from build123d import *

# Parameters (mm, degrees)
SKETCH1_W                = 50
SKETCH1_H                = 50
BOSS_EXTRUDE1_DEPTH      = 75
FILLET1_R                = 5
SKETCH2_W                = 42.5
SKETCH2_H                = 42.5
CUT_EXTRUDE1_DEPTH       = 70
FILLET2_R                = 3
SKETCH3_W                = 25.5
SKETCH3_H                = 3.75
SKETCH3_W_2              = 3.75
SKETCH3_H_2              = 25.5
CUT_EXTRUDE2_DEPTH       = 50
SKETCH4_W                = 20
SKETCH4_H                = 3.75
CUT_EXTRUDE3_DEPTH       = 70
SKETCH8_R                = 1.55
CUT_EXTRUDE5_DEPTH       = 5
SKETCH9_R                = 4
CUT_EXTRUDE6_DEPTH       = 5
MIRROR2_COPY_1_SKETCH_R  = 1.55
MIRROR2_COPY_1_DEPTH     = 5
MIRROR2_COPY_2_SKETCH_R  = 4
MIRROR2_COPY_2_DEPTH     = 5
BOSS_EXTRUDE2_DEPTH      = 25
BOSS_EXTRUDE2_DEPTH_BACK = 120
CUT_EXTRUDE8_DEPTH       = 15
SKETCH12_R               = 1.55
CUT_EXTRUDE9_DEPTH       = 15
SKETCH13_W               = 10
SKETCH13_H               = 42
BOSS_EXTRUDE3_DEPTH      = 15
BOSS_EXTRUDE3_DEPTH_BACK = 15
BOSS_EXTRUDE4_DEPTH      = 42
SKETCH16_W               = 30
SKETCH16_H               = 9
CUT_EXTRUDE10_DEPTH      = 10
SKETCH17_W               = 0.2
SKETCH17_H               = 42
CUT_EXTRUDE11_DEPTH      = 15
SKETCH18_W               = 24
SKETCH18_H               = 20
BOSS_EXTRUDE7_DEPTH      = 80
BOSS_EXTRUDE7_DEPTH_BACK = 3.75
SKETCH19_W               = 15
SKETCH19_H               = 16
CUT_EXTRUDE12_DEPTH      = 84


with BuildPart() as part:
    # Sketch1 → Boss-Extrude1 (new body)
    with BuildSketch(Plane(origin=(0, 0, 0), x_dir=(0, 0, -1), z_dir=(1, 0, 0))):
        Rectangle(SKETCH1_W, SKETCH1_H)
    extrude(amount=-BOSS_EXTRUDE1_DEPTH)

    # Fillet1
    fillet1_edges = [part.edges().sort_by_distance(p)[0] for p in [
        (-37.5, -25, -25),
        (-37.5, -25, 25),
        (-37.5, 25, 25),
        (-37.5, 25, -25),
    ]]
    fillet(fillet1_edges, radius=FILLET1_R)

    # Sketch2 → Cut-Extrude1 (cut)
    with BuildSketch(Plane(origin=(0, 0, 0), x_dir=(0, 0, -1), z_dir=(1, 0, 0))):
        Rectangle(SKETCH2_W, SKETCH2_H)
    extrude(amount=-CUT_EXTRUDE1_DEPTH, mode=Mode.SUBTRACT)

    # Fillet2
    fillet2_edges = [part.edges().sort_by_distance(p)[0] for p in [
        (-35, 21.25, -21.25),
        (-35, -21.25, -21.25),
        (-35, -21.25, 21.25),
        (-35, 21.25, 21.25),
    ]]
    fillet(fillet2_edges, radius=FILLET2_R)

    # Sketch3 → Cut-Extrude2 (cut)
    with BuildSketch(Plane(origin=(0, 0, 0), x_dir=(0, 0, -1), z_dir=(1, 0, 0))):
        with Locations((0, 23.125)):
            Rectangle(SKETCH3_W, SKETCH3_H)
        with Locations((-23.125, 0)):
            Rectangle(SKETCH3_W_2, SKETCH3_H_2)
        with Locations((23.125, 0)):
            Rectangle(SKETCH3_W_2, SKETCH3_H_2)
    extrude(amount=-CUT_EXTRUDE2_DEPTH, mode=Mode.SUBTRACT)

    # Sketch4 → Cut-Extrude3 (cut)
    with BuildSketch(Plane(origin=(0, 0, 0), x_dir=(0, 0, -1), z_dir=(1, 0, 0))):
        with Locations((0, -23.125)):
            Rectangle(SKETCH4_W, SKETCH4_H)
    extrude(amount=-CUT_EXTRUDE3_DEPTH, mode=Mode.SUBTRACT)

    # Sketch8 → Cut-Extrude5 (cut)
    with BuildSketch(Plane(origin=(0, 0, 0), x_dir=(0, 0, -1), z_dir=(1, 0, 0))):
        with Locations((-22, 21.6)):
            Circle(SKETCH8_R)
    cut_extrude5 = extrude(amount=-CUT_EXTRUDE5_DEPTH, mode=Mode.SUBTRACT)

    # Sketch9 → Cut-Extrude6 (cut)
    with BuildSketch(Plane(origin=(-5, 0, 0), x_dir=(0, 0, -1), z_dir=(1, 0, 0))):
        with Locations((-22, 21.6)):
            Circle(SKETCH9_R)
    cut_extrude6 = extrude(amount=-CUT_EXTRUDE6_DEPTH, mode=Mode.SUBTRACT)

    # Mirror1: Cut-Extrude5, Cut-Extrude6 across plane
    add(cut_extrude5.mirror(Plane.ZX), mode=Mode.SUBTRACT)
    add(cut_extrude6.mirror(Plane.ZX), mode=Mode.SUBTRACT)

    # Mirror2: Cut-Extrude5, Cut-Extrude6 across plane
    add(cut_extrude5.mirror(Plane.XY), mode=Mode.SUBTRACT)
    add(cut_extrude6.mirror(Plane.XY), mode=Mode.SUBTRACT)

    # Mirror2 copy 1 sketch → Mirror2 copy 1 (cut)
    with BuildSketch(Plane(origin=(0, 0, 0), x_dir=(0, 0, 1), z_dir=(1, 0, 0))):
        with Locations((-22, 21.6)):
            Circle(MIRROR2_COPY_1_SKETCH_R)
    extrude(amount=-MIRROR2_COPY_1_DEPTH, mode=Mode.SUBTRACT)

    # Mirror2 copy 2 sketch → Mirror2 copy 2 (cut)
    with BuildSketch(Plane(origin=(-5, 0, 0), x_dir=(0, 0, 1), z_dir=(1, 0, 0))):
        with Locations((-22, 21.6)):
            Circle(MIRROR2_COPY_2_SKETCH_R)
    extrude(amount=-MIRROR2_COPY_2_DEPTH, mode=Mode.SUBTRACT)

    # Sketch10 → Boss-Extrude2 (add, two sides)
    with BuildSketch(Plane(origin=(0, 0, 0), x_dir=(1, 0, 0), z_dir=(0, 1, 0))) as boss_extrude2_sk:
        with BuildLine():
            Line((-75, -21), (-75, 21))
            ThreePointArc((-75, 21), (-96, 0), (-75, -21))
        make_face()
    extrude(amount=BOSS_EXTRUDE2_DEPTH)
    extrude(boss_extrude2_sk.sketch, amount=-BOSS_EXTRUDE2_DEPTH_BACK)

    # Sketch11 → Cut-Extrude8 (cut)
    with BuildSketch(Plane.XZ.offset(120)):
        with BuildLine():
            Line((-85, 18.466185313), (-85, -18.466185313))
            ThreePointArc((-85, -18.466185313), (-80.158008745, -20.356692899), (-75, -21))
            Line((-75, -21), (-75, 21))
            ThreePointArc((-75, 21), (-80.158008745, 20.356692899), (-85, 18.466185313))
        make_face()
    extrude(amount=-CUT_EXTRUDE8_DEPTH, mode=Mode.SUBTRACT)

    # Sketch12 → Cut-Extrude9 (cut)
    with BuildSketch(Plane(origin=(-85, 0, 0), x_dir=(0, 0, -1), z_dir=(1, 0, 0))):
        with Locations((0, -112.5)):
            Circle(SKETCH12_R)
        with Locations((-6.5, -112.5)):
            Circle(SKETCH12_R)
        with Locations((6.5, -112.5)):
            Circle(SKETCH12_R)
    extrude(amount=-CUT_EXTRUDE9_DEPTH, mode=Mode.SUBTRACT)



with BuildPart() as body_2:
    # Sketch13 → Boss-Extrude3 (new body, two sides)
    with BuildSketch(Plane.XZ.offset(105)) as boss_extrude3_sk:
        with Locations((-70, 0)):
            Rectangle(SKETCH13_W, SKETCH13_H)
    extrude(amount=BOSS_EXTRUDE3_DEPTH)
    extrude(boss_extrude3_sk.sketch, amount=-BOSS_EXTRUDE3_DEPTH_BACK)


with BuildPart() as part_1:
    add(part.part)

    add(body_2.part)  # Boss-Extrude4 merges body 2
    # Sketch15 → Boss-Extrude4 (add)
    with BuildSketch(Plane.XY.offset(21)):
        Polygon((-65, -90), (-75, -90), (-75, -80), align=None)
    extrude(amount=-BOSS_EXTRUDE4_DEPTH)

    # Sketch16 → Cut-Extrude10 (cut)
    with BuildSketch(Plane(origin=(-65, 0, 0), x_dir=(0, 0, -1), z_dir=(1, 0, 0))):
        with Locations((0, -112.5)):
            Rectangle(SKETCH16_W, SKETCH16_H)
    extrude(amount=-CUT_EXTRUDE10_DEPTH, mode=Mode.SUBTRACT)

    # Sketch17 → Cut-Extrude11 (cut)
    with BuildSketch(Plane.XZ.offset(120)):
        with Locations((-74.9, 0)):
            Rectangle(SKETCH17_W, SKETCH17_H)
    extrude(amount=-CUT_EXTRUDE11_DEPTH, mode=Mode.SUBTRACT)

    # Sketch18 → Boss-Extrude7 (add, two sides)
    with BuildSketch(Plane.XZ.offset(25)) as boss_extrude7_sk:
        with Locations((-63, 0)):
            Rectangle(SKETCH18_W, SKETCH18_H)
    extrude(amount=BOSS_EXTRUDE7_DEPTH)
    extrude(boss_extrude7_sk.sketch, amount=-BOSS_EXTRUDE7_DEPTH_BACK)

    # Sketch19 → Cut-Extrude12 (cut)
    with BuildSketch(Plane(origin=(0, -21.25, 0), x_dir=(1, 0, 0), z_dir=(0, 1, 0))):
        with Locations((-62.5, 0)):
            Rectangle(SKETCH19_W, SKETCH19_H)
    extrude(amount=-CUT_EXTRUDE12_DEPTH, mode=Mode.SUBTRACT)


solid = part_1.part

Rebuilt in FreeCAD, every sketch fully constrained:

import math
import FreeCAD as App
import Part
import Sketcher


def edges_at(feature, points):
    """Names of the edges that pass closest to the given points."""
    edges = feature.Shape.Edges
    near = lambda p: min(range(len(edges)), key=lambda i: edges[i].distToShape(Part.Vertex(*p))[0])
    return sorted({f"Edge{near(p) + 1}" for p in points})


def add_polygon(sketch, points):
    """Adds a closed chain of lines whose ends are joined by coincident constraints."""
    first, n = sketch.GeometryCount, len(points)
    for a, b in zip(points, points[1:] + points[:1]):
        sketch.addGeometry(Part.LineSegment(App.Vector(*a, 0), App.Vector(*b, 0)), False)
    for i in range(n):
        sketch.addConstraint(Sketcher.Constraint("Coincident", first + i, 2, first + (i + 1) % n, 1))

doc = App.newDocument("Part")
body = doc.addObject("PartDesign::Body", "Body")

sketch1 = doc.addObject("Sketcher::SketchObject", "Sketch")
body.addObject(sketch1)
sketch1.AttachmentSupport = (doc.YZ_Plane, [""])
sketch1.MapMode = "FlatFace"
add_polygon(sketch1, [(25, 25), (-25, 25), (-25, -25), (25, -25)])
sketch1.addConstraint(Sketcher.Constraint("Horizontal", 0))
sketch1.addConstraint(Sketcher.Constraint("Vertical", 1))
sketch1.addConstraint(Sketcher.Constraint("Horizontal", 2))
sketch1.addConstraint(Sketcher.Constraint("Vertical", 3))
sketch1.addConstraint(Sketcher.Constraint("Symmetric", 0, 2, 2, 2, -1, 1))
sketch1.addConstraint(Sketcher.Constraint("Equal", 2, 1))
sketch1.addConstraint(Sketcher.Constraint("DistanceX", 0, 2, 0, 1, 50.0))
pad1 = doc.addObject("PartDesign::Pad", "Pad")
body.addObject(pad1)
pad1.Profile = sketch1
pad1.Length = 75
pad1.Reversed = True
doc.recompute()

fillet = doc.addObject("PartDesign::Fillet", "Fillet")
body.addObject(fillet)
fillet.Base = (pad1, edges_at(pad1, [
    (-37.5, -25, -25),
    (-37.5, -25, 25),
    (-37.5, 25, 25),
    (-37.5, 25, -25),
]))
fillet.Radius = 5

sketch2 = doc.addObject("Sketcher::SketchObject", "Sketch001")
body.addObject(sketch2)
sketch2.AttachmentSupport = (doc.YZ_Plane, [""])
sketch2.MapMode = "FlatFace"
add_polygon(sketch2, [(21, 21), (-21, 21), (-21, -21), (21, -21)])
sketch2.addConstraint(Sketcher.Constraint("Horizontal", 0))
sketch2.addConstraint(Sketcher.Constraint("Vertical", 1))
sketch2.addConstraint(Sketcher.Constraint("Horizontal", 2))
sketch2.addConstraint(Sketcher.Constraint("Vertical", 3))
sketch2.addConstraint(Sketcher.Constraint("Symmetric", 0, 2, 2, 2, -1, 1))
sketch2.addConstraint(Sketcher.Constraint("Equal", 2, 1))
sketch2.addConstraint(Sketcher.Constraint("DistanceX", 0, 2, 0, 1, 42.5))
pocket1 = doc.addObject("PartDesign::Pocket", "Pocket")
body.addObject(pocket1)
pocket1.Profile = sketch2
pocket1.Length = 70
doc.recompute()

fillet2 = doc.addObject("PartDesign::Fillet", "Fillet001")
body.addObject(fillet2)
fillet2.Base = (pocket1, edges_at(pocket1, [
    (-35, 21.25, -21.25),
    (-35, -21.25, -21.25),
    (-35, -21.25, 21.25),
    (-35, 21.25, 21.25),
]))
fillet2.Radius = 3

sketch3 = doc.addObject("Sketcher::SketchObject", "Sketch002")
body.addObject(sketch3)
sketch3.AttachmentSupport = (doc.YZ_Plane, [""])
sketch3.MapMode = "FlatFace"
add_polygon(sketch3, [(25, 12.8), (21.2, 12.8), (21.2, -12.8), (25, -12.8)])
add_polygon(sketch3, [(12.8, 25), (-12.8, 25), (-12.8, 21.2), (12.8, 21.2)])
add_polygon(sketch3, [(12.8, -21.2), (-12.8, -21.2), (-12.8, -25), (12.8, -25)])
sketch3.addConstraint(Sketcher.Constraint("Horizontal", 0))
sketch3.addConstraint(Sketcher.Constraint("Vertical", 1))
sketch3.addConstraint(Sketcher.Constraint("Horizontal", 2))
sketch3.addConstraint(Sketcher.Constraint("Vertical", 3))
sketch3.addConstraint(Sketcher.Constraint("Horizontal", 4))
sketch3.addConstraint(Sketcher.Constraint("Vertical", 5))
sketch3.addConstraint(Sketcher.Constraint("Horizontal", 6))
sketch3.addConstraint(Sketcher.Constraint("Vertical", 7))
sketch3.addConstraint(Sketcher.Constraint("Horizontal", 8))
sketch3.addConstraint(Sketcher.Constraint("Vertical", 9))
sketch3.addConstraint(Sketcher.Constraint("Horizontal", 10))
sketch3.addConstraint(Sketcher.Constraint("Vertical", 11))
sketch3.addConstraint(Sketcher.Constraint("Symmetric", 6, 2, 8, 2, -1, 1))
sketch3.addConstraint(Sketcher.Constraint("Symmetric", 4, 2, 10, 2, -1, 1))
sketch3.addConstraint(Sketcher.Constraint("Vertical", 5, 2, 8, 2))
sketch3.addConstraint(Sketcher.Constraint("Equal", 10, 1))
sketch3.addConstraint(Sketcher.Constraint("Equal", 2, 5))
sketch3.addConstraint(Sketcher.Constraint("DistanceX", 4, 2, 4, 1, 25.5))
sketch3.addConstraint(Sketcher.Constraint("DistanceX", -1, 1, 2, 2, 25.0))
sketch3.addConstraint(Sketcher.Constraint("DistanceY", -1, 1, 4, 2, 25.0))
sketch3.addConstraint(Sketcher.Constraint("DistanceX", 4, 2, 0, 2, 34.0))
sketch3.addConstraint(Sketcher.Constraint("DistanceY", 1, 2, 5, 2, 34.0))
pocket2 = doc.addObject("PartDesign::Pocket", "Pocket001")
body.addObject(pocket2)
pocket2.Profile = sketch3
pocket2.Length = 50

sketch4 = doc.addObject("Sketcher::SketchObject", "Sketch003")
body.addObject(sketch4)
sketch4.AttachmentSupport = (doc.YZ_Plane, [""])
sketch4.MapMode = "FlatFace"
add_polygon(sketch4, [(-21.2, 10), (-25, 10), (-25, -10), (-21.2, -10)])
sketch4.addConstraint(Sketcher.Constraint("Horizontal", 0))
sketch4.addConstraint(Sketcher.Constraint("Vertical", 1))
sketch4.addConstraint(Sketcher.Constraint("Horizontal", 2))
sketch4.addConstraint(Sketcher.Constraint("Vertical", 3))
sketch4.addConstraint(Sketcher.Constraint("DistanceY", 1, 2, 1, 1, 20.0))
sketch4.addConstraint(Sketcher.Constraint("DistanceX", 0, 2, -1, 1, 25.0))
sketch4.addConstraint(Sketcher.Constraint("DistanceY", -1, 1, 0, 2, 10.0))
sketch4.addConstraint(Sketcher.Constraint("DistanceX", 0, 2, 0, 1, 3.75))
pocket3 = doc.addObject("PartDesign::Pocket", "Pocket002")
body.addObject(pocket3)
pocket3.Profile = sketch4
pocket3.Length = 70

sketch5 = doc.addObject("Sketcher::SketchObject", "Sketch004")
body.addObject(sketch5)
sketch5.AttachmentSupport = (doc.YZ_Plane, [""])
sketch5.MapMode = "FlatFace"
sketch5.addGeometry(Part.Circle(App.Vector(21.6, 22, 0), App.Vector(0, 0, 1), 1.6), False)
sketch5.addConstraint(Sketcher.Constraint("Diameter", 0, 3.1))
sketch5.addConstraint(Sketcher.Constraint("DistanceY", -1, 1, 0, 3, 22.0))
sketch5.addConstraint(Sketcher.Constraint("DistanceX", -1, 1, 0, 3, 21.6))
pocket4 = doc.addObject("PartDesign::Pocket", "Pocket003")
body.addObject(pocket4)
pocket4.Profile = sketch5
pocket4.Length = 5

sketch6 = doc.addObject("Sketcher::SketchObject", "Sketch005")
body.addObject(sketch6)
sketch6.AttachmentSupport = (doc.YZ_Plane, [""])
sketch6.MapMode = "FlatFace"
sketch6.AttachmentOffset = App.Placement(App.Vector(0, 0, -5), App.Rotation())
sketch6.addGeometry(Part.Circle(App.Vector(21.6, 22, 0), App.Vector(0, 0, 1), 4), False)
sketch6.addConstraint(Sketcher.Constraint("Diameter", 0, 8.0))
sketch6.addConstraint(Sketcher.Constraint("DistanceY", -1, 1, 0, 3, 22.0))
sketch6.addConstraint(Sketcher.Constraint("DistanceX", -1, 1, 0, 3, 21.6))
pocket5 = doc.addObject("PartDesign::Pocket", "Pocket004")
body.addObject(pocket5)
pocket5.Profile = sketch6
pocket5.Length = 5
doc.recompute()

mirrored = doc.addObject("PartDesign::Mirrored", "Mirrored")
body.addObject(mirrored)
mirrored.Originals = [pocket4, pocket5]
mirrored.MirrorPlane = (doc.XZ_Plane, [""])
body.Tip = mirrored
doc.recompute()

mirrored2 = doc.addObject("PartDesign::Mirrored", "Mirrored001")
body.addObject(mirrored2)
mirrored2.Originals = [pocket4, pocket5]
mirrored2.MirrorPlane = (doc.XY_Plane, [""])
body.Tip = mirrored2

sketch7 = doc.addObject("Sketcher::SketchObject", "Sketch006")
body.addObject(sketch7)
sketch7.AttachmentSupport = (doc.YZ_Plane, [""])
sketch7.MapMode = "FlatFace"
sketch7.addGeometry(Part.Circle(App.Vector(-21.6, -22, 0), App.Vector(0, 0, 1), 1.6), False)
sketch7.addConstraint(Sketcher.Constraint("Diameter", 0, 3.1))
sketch7.addConstraint(Sketcher.Constraint("DistanceY", 0, 3, -1, 1, 22.0))
sketch7.addConstraint(Sketcher.Constraint("DistanceX", 0, 3, -1, 1, 21.6))
pocket6 = doc.addObject("PartDesign::Pocket", "Pocket005")
body.addObject(pocket6)
pocket6.Profile = sketch7
pocket6.Length = 5

sketch8 = doc.addObject("Sketcher::SketchObject", "Sketch007")
body.addObject(sketch8)
sketch8.AttachmentSupport = (doc.YZ_Plane, [""])
sketch8.MapMode = "FlatFace"
sketch8.AttachmentOffset = App.Placement(App.Vector(0, 0, -5), App.Rotation())
sketch8.addGeometry(Part.Circle(App.Vector(-21.6, -22, 0), App.Vector(0, 0, 1), 4), False)
sketch8.addConstraint(Sketcher.Constraint("Diameter", 0, 8.0))
sketch8.addConstraint(Sketcher.Constraint("DistanceY", 0, 3, -1, 1, 22.0))
sketch8.addConstraint(Sketcher.Constraint("DistanceX", 0, 3, -1, 1, 21.6))
pocket7 = doc.addObject("PartDesign::Pocket", "Pocket006")
body.addObject(pocket7)
pocket7.Profile = sketch8
pocket7.Length = 5

sketch9 = doc.addObject("Sketcher::SketchObject", "Sketch008")
body.addObject(sketch9)
sketch9.AttachmentSupport = (doc.XZ_Plane, [""])
sketch9.MapMode = "FlatFace"
sketch9.addGeometry(Part.LineSegment(App.Vector(-75, 21, 0), App.Vector(-75, -21, 0)), False)
sketch9.addGeometry(Part.ArcOfCircle(Part.Circle(App.Vector(-75, 0, 0), App.Vector(0, 0, 1), 21), math.radians(90), math.radians(270)), False)
sketch9.addConstraint(Sketcher.Constraint("Coincident", 0, 1, 1, 1))
sketch9.addConstraint(Sketcher.Constraint("Coincident", 1, 2, 0, 2))
sketch9.addConstraint(Sketcher.Constraint("Vertical", 0))
sketch9.addConstraint(Sketcher.Constraint("PointOnObject", 1, 3, -1))
sketch9.addConstraint(Sketcher.Constraint("Vertical", 1, 3, 0, 1))
sketch9.addConstraint(Sketcher.Constraint("Radius", 1, 21.0))
sketch9.addConstraint(Sketcher.Constraint("DistanceX", 1, 3, -1, 1, 75.0))
pad2 = doc.addObject("PartDesign::Pad", "Pad001")
body.addObject(pad2)
pad2.Profile = sketch9
pad2.Type = "TwoLengths"
pad2.Length = 25
pad2.Length2 = 120
pad2.Reversed = True

sketch10 = doc.addObject("Sketcher::SketchObject", "Sketch009")
body.addObject(sketch10)
sketch10.AttachmentSupport = (doc.XZ_Plane, [""])
sketch10.MapMode = "FlatFace"
sketch10.AttachmentOffset = App.Placement(App.Vector(0, 0, 120), App.Rotation())
sketch10.addGeometry(Part.LineSegment(App.Vector(-85, 18, 0), App.Vector(-85, -18, 0)), False)
sketch10.addGeometry(Part.ArcOfCircle(Part.Circle(App.Vector(-75, 0, 0), App.Vector(0, 0, 1), 21), math.radians(-118), math.radians(-90)), False)
sketch10.addGeometry(Part.LineSegment(App.Vector(-75, -21, 0), App.Vector(-75, 21, 0)), False)
sketch10.addGeometry(Part.ArcOfCircle(Part.Circle(App.Vector(-75, 0, 0), App.Vector(0, 0, 1), 21), math.radians(90), math.radians(118)), False)
sketch10.addConstraint(Sketcher.Constraint("Coincident", 0, 2, 1, 1))
sketch10.addConstraint(Sketcher.Constraint("Coincident", 1, 2, 2, 1))
sketch10.addConstraint(Sketcher.Constraint("Coincident", 2, 2, 3, 1))
sketch10.addConstraint(Sketcher.Constraint("Coincident", 3, 2, 0, 1))
sketch10.addConstraint(Sketcher.Constraint("Vertical", 0))
sketch10.addConstraint(Sketcher.Constraint("Vertical", 2))
sketch10.addConstraint(Sketcher.Constraint("Coincident", 3, 3, 1, 3))
sketch10.addConstraint(Sketcher.Constraint("Equal", 1, 3))
sketch10.addConstraint(Sketcher.Constraint("PointOnObject", 1, 3, -1))
sketch10.addConstraint(Sketcher.Constraint("Vertical", 3, 3, 1, 2))
sketch10.addConstraint(Sketcher.Constraint("Radius", 1, 21.0))
sketch10.addConstraint(Sketcher.Constraint("DistanceX", 1, 3, -1, 1, 75.0))
sketch10.addConstraint(Sketcher.Constraint("DistanceX", 0, 2, -1, 1, 85.0))
pocket8 = doc.addObject("PartDesign::Pocket", "Pocket007")
body.addObject(pocket8)
pocket8.Profile = sketch10
pocket8.Length = 15

sketch11 = doc.addObject("Sketcher::SketchObject", "Sketch010")
body.addObject(sketch11)
sketch11.AttachmentSupport = (doc.YZ_Plane, [""])
sketch11.MapMode = "FlatFace"
sketch11.AttachmentOffset = App.Placement(App.Vector(0, 0, -85), App.Rotation())
sketch11.addGeometry(Part.Circle(App.Vector(-112.5, 0, 0), App.Vector(0, 0, 1), 1.6), False)
sketch11.addGeometry(Part.Circle(App.Vector(-112.5, 6.5, 0), App.Vector(0, 0, 1), 1.6), False)
sketch11.addGeometry(Part.Circle(App.Vector(-112.5, -6.5, 0), App.Vector(0, 0, 1), 1.6), False)
sketch11.addConstraint(Sketcher.Constraint("Equal", 0, 1))
sketch11.addConstraint(Sketcher.Constraint("Equal", 1, 2))
sketch11.addConstraint(Sketcher.Constraint("Symmetric", 1, 3, 2, 3, -1))
sketch11.addConstraint(Sketcher.Constraint("PointOnObject", 0, 3, -1))
sketch11.addConstraint(Sketcher.Constraint("Vertical", 0, 3, 1, 3))
sketch11.addConstraint(Sketcher.Constraint("Diameter", 0, 3.1))
sketch11.addConstraint(Sketcher.Constraint("DistanceY", 2, 3, 1, 3, 13.0))
sketch11.addConstraint(Sketcher.Constraint("DistanceX", 0, 3, -1, 1, 112.5))
pocket9 = doc.addObject("PartDesign::Pocket", "Pocket008")
body.addObject(pocket9)
pocket9.Profile = sketch11
pocket9.Length = 15
body2 = doc.addObject("PartDesign::Body", "Body001")

sketch12 = doc.addObject("Sketcher::SketchObject", "Sketch011")
body2.addObject(sketch12)
sketch12.AttachmentSupport = (doc.getObject("XZ_Plane001"), [""])
sketch12.MapMode = "FlatFace"
sketch12.AttachmentOffset = App.Placement(App.Vector(0, 0, 105), App.Rotation())
add_polygon(sketch12, [(-75, 21), (-75, -21), (-65, -21), (-65, 21)])
sketch12.addConstraint(Sketcher.Constraint("Vertical", 0))
sketch12.addConstraint(Sketcher.Constraint("Horizontal", 1))
sketch12.addConstraint(Sketcher.Constraint("Vertical", 2))
sketch12.addConstraint(Sketcher.Constraint("Horizontal", 3))
sketch12.addConstraint(Sketcher.Constraint("DistanceX", 1, 1, 1, 2, 10.0))
sketch12.addConstraint(Sketcher.Constraint("DistanceY", 0, 2, 0, 1, 42.0))
sketch12.addConstraint(Sketcher.Constraint("DistanceX", 0, 2, -1, 1, 75.0))
sketch12.addConstraint(Sketcher.Constraint("DistanceY", 0, 2, -1, 1, 21.0))
pad3 = doc.addObject("PartDesign::Pad", "Pad002")
body2.addObject(pad3)
pad3.Profile = sketch12
pad3.Type = "TwoLengths"
pad3.Length = 15
pad3.Length2 = 15
doc.recompute()

boolean = doc.addObject("PartDesign::Boolean", "Boolean")
body.addObject(boolean)
boolean.Type = "Fuse"
boolean.addObjects([body2])

sketch13 = doc.addObject("Sketcher::SketchObject", "Sketch012")
body.addObject(sketch13)
sketch13.AttachmentSupport = (doc.XY_Plane, [""])
sketch13.MapMode = "FlatFace"
sketch13.AttachmentOffset = App.Placement(App.Vector(0, 0, 21), App.Rotation())
add_polygon(sketch13, [(-75, -90), (-65, -90), (-75, -80)])
sketch13.addConstraint(Sketcher.Constraint("Horizontal", 0))
sketch13.addConstraint(Sketcher.Constraint("Vertical", 2))
sketch13.addConstraint(Sketcher.Constraint("Equal", 0, 2))
sketch13.addConstraint(Sketcher.Constraint("DistanceX", 0, 1, 0, 2, 10.0))
sketch13.addConstraint(Sketcher.Constraint("DistanceX", 0, 2, -1, 1, 65.0))
sketch13.addConstraint(Sketcher.Constraint("DistanceY", 0, 2, -1, 1, 90.0))
pad4 = doc.addObject("PartDesign::Pad", "Pad003")
body.addObject(pad4)
pad4.Profile = sketch13
pad4.Length = 42
pad4.Reversed = True

sketch14 = doc.addObject("Sketcher::SketchObject", "Sketch013")
body.addObject(sketch14)
sketch14.AttachmentSupport = (doc.YZ_Plane, [""])
sketch14.MapMode = "FlatFace"
sketch14.AttachmentOffset = App.Placement(App.Vector(0, 0, -65), App.Rotation())
add_polygon(sketch14, [(-108, 15), (-117, 15), (-117, -15), (-108, -15)])
sketch14.addConstraint(Sketcher.Constraint("Horizontal", 0))
sketch14.addConstraint(Sketcher.Constraint("Vertical", 1))
sketch14.addConstraint(Sketcher.Constraint("Horizontal", 2))
sketch14.addConstraint(Sketcher.Constraint("Vertical", 3))
sketch14.addConstraint(Sketcher.Constraint("DistanceX", 0, 2, 0, 1, 9.0))
sketch14.addConstraint(Sketcher.Constraint("DistanceY", 1, 2, 1, 1, 30.0))
sketch14.addConstraint(Sketcher.Constraint("DistanceX", 0, 2, -1, 1, 117.0))
sketch14.addConstraint(Sketcher.Constraint("DistanceY", -1, 1, 0, 2, 15.0))
pocket10 = doc.addObject("PartDesign::Pocket", "Pocket009")
body.addObject(pocket10)
pocket10.Profile = sketch14
pocket10.Length = 10

sketch15 = doc.addObject("Sketcher::SketchObject", "Sketch014")
body.addObject(sketch15)
sketch15.AttachmentSupport = (doc.XZ_Plane, [""])
sketch15.MapMode = "FlatFace"
sketch15.AttachmentOffset = App.Placement(App.Vector(0, 0, 120), App.Rotation())
add_polygon(sketch15, [(-75, 21), (-75, -21), (-74.8, -21), (-74.8, 21)])
sketch15.addConstraint(Sketcher.Constraint("Vertical", 0))
sketch15.addConstraint(Sketcher.Constraint("Horizontal", 1))
sketch15.addConstraint(Sketcher.Constraint("Vertical", 2))
sketch15.addConstraint(Sketcher.Constraint("Horizontal", 3))
sketch15.addConstraint(Sketcher.Constraint("DistanceY", 0, 2, 0, 1, 42.0))
sketch15.addConstraint(Sketcher.Constraint("DistanceX", 1, 1, 1, 2, 0.2))
sketch15.addConstraint(Sketcher.Constraint("DistanceX", 0, 2, -1, 1, 75.0))
sketch15.addConstraint(Sketcher.Constraint("DistanceY", 0, 2, -1, 1, 21.0))
pocket11 = doc.addObject("PartDesign::Pocket", "Pocket010")
body.addObject(pocket11)
pocket11.Profile = sketch15
pocket11.Length = 15

sketch16 = doc.addObject("Sketcher::SketchObject", "Sketch015")
body.addObject(sketch16)
sketch16.AttachmentSupport = (doc.XZ_Plane, [""])
sketch16.MapMode = "FlatFace"
sketch16.AttachmentOffset = App.Placement(App.Vector(0, 0, 25), App.Rotation())
add_polygon(sketch16, [(-75, 10), (-75, -10), (-51, -10), (-51, 10)])
sketch16.addConstraint(Sketcher.Constraint("Vertical", 0))
sketch16.addConstraint(Sketcher.Constraint("Horizontal", 1))
sketch16.addConstraint(Sketcher.Constraint("Vertical", 2))
sketch16.addConstraint(Sketcher.Constraint("Horizontal", 3))
sketch16.addConstraint(Sketcher.Constraint("DistanceX", 1, 1, 1, 2, 24.0))
sketch16.addConstraint(Sketcher.Constraint("DistanceY", 0, 2, 0, 1, 20.0))
sketch16.addConstraint(Sketcher.Constraint("DistanceX", 0, 2, -1, 1, 75.0))
sketch16.addConstraint(Sketcher.Constraint("DistanceY", 0, 2, -1, 1, 10.0))
pad5 = doc.addObject("PartDesign::Pad", "Pad004")
body.addObject(pad5)
pad5.Profile = sketch16
pad5.Type = "TwoLengths"
pad5.Length = 80
pad5.Length2 = 3.75

sketch17 = doc.addObject("Sketcher::SketchObject", "Sketch016")
body.addObject(sketch17)
sketch17.AttachmentSupport = (doc.XZ_Plane, [""])
sketch17.MapMode = "FlatFace"
sketch17.AttachmentOffset = App.Placement(App.Vector(0, 0, 21.25), App.Rotation())
add_polygon(sketch17, [(-70, -8), (-70, 8), (-55, 8), (-55, -8)])
sketch17.addConstraint(Sketcher.Constraint("Vertical", 0))
sketch17.addConstraint(Sketcher.Constraint("Horizontal", 1))
sketch17.addConstraint(Sketcher.Constraint("Vertical", 2))
sketch17.addConstraint(Sketcher.Constraint("Horizontal", 3))
sketch17.addConstraint(Sketcher.Constraint("DistanceX", 1, 1, 1, 2, 15.0))
sketch17.addConstraint(Sketcher.Constraint("DistanceY", 0, 1, 0, 2, 16.0))
sketch17.addConstraint(Sketcher.Constraint("DistanceX", 0, 2, -1, 1, 70.0))
sketch17.addConstraint(Sketcher.Constraint("DistanceY", -1, 1, 0, 2, 8.0))
pocket12 = doc.addObject("PartDesign::Pocket", "Pocket011")
body.addObject(pocket12)
pocket12.Profile = sketch17
pocket12.Length = 84
pocket12.Reversed = True

doc.recompute()
